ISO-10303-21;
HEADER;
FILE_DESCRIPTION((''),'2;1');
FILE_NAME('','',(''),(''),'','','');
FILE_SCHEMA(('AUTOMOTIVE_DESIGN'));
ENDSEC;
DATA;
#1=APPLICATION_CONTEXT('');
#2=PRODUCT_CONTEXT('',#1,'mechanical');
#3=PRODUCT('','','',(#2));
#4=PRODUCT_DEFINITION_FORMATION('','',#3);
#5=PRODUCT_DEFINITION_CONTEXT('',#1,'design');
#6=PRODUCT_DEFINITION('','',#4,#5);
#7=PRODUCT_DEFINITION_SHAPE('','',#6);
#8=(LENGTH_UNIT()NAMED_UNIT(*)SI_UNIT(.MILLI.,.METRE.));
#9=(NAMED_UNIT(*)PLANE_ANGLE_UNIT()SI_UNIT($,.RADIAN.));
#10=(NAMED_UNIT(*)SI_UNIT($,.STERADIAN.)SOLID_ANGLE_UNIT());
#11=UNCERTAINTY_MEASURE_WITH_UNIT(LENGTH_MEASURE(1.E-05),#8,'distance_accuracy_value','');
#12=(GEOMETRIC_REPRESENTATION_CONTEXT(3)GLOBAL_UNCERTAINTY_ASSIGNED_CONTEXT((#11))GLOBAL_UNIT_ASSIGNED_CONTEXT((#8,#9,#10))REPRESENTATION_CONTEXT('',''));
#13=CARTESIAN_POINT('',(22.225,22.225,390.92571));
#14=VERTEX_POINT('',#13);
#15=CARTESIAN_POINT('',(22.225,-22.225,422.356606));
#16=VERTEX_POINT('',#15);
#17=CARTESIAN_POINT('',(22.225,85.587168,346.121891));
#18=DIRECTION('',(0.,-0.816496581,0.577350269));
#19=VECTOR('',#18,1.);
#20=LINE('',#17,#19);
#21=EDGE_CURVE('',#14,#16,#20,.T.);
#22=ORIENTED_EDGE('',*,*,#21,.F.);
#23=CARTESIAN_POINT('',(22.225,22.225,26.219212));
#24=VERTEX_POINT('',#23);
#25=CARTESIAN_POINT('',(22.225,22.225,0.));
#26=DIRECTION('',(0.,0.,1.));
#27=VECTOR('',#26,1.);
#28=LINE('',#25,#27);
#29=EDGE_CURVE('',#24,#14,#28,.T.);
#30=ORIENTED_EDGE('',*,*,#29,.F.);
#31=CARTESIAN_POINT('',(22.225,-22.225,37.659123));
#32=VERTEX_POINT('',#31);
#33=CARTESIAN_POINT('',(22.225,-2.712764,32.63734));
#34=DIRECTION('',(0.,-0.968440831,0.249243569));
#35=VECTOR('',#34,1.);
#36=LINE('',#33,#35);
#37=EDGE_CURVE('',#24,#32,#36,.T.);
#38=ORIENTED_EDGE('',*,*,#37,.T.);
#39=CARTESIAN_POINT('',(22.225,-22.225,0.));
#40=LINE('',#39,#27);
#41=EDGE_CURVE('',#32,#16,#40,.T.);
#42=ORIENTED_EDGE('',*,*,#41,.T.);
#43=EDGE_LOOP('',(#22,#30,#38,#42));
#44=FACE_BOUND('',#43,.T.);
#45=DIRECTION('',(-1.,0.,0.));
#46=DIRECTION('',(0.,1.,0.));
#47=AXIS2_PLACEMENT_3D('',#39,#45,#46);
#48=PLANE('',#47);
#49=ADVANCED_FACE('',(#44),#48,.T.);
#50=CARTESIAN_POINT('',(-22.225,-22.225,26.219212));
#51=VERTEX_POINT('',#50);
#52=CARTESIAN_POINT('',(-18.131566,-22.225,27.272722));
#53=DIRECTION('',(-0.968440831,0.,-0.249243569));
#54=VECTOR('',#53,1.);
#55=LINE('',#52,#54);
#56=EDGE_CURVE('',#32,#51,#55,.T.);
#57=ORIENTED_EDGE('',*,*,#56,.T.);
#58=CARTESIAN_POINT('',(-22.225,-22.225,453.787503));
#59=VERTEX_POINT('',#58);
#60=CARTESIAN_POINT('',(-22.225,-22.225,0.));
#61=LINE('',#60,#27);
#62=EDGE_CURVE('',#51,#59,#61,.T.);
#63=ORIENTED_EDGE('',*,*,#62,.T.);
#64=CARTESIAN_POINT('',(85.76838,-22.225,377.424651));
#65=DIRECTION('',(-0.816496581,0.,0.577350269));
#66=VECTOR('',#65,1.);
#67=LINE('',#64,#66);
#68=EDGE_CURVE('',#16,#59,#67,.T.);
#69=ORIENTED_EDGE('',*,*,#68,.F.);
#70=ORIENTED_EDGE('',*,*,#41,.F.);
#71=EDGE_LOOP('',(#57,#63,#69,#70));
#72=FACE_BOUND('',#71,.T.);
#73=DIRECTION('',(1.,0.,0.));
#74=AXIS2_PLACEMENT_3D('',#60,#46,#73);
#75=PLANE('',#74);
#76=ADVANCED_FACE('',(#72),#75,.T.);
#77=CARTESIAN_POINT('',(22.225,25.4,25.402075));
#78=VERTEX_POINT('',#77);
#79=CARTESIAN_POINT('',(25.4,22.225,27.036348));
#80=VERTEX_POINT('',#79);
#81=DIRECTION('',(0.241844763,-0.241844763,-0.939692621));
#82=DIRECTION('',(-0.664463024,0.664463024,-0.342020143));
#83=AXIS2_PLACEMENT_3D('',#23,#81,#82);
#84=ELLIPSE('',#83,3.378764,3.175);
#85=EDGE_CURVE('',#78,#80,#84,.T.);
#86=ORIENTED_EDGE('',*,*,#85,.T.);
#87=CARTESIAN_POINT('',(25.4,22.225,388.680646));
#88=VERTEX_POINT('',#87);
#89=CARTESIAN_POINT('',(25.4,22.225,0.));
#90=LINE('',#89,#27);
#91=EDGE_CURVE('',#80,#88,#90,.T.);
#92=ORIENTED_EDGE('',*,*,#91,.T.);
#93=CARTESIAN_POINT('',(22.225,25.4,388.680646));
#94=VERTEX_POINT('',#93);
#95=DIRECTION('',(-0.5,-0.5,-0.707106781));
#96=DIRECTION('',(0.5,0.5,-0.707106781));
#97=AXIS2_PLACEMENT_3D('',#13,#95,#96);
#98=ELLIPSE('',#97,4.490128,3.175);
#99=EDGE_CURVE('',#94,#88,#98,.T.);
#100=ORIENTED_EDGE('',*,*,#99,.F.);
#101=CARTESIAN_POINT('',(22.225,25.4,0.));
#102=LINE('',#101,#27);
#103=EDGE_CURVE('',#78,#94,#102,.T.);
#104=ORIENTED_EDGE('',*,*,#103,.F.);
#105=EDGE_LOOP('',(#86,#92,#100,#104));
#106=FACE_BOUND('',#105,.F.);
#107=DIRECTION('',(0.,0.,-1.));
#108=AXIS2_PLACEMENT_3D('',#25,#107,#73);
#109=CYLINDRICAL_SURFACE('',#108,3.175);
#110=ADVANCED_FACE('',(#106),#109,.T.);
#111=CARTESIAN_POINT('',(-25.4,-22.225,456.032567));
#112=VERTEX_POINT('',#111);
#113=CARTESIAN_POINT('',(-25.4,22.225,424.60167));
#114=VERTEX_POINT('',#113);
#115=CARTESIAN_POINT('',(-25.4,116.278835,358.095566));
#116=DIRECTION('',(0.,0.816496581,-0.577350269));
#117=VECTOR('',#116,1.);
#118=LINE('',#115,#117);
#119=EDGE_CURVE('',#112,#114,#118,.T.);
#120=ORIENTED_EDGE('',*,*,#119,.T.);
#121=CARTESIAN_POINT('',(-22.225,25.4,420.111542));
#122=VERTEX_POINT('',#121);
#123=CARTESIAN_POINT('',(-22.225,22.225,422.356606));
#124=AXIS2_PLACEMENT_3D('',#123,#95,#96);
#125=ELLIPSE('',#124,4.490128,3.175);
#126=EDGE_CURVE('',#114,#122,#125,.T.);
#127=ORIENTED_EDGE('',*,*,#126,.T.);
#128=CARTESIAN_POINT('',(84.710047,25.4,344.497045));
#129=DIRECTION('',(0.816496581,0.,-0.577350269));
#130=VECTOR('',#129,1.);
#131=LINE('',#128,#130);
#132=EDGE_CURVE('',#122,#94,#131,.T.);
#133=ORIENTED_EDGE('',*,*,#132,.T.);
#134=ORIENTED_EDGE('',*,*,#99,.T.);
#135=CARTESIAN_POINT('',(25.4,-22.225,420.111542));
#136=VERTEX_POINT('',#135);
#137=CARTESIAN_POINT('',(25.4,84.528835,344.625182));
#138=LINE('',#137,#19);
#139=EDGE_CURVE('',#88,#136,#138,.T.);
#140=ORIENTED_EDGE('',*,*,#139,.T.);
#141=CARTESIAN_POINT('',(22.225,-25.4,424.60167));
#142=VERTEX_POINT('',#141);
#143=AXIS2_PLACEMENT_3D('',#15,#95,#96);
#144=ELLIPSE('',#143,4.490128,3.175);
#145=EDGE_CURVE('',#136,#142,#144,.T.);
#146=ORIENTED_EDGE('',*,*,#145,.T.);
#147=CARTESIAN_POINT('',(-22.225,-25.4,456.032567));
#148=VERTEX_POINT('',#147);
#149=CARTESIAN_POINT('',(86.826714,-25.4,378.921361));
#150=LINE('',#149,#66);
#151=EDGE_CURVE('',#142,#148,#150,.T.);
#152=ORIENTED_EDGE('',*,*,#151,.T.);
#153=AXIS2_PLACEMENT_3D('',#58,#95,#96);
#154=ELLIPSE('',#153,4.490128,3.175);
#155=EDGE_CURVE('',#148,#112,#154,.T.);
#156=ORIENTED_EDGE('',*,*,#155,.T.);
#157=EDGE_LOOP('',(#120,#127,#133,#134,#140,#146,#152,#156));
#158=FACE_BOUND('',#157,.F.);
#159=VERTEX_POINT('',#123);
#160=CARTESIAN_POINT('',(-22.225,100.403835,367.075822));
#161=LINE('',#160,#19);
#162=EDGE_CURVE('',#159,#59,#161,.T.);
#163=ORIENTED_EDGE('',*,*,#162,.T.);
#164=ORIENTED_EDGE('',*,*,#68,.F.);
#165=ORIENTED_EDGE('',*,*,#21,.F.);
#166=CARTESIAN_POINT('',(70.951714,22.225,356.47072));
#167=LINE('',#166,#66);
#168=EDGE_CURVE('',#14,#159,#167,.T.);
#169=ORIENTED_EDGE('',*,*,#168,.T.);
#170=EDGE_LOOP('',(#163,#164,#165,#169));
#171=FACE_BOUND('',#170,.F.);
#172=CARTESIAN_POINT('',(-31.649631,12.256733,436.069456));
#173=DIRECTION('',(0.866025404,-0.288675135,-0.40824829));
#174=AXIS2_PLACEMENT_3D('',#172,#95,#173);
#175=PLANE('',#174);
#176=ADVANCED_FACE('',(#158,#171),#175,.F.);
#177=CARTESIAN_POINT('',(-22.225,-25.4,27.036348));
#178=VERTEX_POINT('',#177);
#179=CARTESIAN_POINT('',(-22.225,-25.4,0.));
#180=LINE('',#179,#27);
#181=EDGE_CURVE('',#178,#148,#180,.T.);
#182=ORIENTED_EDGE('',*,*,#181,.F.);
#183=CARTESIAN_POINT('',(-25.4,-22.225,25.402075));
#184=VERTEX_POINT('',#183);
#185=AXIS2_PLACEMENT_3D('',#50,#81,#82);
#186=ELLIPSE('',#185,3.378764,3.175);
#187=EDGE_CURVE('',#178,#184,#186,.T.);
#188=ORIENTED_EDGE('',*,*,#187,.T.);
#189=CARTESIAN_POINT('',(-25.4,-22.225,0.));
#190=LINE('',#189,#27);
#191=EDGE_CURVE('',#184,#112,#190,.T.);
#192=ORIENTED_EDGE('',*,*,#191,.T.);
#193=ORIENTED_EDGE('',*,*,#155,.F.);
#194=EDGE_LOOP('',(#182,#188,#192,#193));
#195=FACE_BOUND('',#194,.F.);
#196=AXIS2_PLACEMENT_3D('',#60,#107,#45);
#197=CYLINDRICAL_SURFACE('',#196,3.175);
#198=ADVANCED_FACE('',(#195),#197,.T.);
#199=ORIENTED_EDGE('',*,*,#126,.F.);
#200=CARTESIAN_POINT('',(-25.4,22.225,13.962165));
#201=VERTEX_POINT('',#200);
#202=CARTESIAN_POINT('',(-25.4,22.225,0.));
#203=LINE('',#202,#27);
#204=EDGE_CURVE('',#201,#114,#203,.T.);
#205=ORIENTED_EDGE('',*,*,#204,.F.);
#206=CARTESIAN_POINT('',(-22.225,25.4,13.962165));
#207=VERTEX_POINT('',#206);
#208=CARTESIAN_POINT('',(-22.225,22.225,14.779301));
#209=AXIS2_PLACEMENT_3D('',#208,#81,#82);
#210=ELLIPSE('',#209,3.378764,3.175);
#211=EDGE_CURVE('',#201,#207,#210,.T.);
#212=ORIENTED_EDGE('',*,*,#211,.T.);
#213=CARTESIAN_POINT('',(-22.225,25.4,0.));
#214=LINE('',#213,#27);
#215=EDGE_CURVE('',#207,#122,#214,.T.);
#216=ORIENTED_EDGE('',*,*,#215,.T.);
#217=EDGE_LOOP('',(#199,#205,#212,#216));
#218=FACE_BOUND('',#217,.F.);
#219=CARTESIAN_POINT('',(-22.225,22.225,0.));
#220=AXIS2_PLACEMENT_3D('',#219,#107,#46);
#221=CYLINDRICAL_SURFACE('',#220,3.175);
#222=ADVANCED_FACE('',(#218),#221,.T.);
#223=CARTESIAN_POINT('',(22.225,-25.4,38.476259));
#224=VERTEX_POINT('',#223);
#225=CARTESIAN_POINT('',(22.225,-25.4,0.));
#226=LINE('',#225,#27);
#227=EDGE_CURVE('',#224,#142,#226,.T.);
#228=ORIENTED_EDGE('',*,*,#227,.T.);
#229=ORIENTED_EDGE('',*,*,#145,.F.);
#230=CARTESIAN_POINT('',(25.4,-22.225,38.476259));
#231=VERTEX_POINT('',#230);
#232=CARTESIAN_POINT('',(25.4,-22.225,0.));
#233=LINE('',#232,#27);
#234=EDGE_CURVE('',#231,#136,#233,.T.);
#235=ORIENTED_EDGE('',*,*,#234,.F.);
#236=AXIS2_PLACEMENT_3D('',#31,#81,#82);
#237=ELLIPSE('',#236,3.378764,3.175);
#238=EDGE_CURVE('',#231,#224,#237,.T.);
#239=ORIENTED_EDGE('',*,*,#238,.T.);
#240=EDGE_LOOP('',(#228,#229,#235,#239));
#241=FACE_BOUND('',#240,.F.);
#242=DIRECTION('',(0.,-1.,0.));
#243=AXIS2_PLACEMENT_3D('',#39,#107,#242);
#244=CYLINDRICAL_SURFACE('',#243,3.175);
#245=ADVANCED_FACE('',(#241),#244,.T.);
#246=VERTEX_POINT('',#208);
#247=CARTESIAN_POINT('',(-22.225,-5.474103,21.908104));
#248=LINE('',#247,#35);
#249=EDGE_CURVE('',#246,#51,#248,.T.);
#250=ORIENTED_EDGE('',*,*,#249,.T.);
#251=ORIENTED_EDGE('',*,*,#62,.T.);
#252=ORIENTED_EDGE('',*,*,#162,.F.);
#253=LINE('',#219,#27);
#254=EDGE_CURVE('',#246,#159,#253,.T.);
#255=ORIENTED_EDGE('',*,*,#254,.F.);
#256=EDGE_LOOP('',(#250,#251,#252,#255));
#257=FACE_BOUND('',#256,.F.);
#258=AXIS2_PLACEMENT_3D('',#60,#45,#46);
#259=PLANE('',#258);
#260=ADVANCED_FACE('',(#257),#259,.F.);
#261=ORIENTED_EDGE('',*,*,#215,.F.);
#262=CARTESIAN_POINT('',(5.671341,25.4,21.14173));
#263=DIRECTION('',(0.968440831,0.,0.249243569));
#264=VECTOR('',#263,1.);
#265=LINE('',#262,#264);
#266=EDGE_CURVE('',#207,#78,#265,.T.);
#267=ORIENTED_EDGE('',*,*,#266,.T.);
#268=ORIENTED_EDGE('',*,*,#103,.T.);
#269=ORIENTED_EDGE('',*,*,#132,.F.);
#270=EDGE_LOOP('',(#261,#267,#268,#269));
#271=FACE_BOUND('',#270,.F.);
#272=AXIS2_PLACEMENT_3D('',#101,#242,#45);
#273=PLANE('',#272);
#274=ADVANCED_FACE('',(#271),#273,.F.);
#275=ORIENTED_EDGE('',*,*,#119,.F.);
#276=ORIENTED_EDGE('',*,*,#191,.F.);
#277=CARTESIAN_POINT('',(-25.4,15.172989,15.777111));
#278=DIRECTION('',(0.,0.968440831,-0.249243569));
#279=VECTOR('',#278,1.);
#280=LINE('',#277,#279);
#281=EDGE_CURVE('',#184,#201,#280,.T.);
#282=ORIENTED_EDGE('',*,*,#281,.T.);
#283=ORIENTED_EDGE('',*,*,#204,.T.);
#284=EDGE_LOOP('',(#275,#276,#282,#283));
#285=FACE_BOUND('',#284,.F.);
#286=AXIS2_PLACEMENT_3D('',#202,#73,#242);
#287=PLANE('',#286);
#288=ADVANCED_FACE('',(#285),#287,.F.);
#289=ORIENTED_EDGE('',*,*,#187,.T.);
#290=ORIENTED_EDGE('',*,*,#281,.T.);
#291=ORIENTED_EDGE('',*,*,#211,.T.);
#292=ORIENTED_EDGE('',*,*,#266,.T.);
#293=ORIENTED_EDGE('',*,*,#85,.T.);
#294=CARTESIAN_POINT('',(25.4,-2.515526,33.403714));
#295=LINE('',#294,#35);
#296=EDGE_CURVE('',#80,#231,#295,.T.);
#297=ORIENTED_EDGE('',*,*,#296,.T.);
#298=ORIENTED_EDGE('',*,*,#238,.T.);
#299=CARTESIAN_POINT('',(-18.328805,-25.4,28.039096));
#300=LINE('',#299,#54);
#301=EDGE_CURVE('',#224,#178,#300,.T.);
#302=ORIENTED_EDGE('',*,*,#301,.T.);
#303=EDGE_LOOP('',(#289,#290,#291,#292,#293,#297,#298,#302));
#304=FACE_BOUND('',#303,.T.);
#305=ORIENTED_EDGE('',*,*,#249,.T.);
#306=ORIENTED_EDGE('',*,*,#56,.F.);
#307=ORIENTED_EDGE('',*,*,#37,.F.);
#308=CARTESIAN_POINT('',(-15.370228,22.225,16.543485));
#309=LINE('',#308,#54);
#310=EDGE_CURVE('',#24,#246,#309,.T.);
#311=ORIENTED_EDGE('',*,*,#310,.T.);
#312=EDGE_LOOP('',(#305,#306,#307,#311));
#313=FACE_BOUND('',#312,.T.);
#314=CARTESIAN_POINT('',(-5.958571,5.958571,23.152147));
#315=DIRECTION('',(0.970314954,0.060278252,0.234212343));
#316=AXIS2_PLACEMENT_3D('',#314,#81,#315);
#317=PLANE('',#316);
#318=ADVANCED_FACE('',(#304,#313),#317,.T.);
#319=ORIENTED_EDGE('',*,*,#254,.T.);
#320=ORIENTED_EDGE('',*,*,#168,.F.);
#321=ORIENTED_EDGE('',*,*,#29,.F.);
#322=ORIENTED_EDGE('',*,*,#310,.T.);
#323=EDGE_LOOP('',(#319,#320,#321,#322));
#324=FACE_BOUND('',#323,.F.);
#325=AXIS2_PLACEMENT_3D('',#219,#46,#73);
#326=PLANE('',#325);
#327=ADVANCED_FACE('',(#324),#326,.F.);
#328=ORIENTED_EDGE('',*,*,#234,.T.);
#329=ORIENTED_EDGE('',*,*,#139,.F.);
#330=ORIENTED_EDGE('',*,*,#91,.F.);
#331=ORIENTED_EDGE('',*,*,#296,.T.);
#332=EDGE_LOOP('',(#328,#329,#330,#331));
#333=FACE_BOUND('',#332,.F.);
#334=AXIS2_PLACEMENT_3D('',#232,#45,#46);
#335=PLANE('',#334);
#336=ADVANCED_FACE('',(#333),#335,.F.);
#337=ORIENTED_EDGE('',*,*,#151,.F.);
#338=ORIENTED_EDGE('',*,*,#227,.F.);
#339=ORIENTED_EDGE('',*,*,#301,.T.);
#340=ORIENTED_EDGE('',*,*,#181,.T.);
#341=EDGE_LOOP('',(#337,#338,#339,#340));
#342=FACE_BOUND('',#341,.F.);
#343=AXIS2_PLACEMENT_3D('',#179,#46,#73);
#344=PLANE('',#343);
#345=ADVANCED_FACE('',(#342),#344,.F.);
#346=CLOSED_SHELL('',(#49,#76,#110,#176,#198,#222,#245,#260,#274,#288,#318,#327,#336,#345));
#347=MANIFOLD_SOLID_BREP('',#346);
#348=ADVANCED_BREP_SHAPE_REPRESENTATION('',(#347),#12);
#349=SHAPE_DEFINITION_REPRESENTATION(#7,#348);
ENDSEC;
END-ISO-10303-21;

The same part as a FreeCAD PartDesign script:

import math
import FreeCAD as App
import Part
import Sketcher
from FreeCAD import Vector
Q = App.Units.Quantity

doc = App.newDocument("Part")
params = doc.addObject("Spreadsheet::Sheet", "Params")
for row, (alias, value) in enumerate([
    ("sketch1_radius", "0.125 in"),
    ("pad1_length", "18 in"),
    ("sketch2_width", "6 in"),
    ("pocket1_length", "1 in"),
    ("pocket1_length2", "0.97 in"),
    ("sketch3_width", "6 in"),
    ("pocket2_length", "0.97 in"),
    ("pocket2_length2", "1 in"),
], start=1):
    params.set(f"A{row}", alias)
    params.set(f"B{row}", "=" + value)
    params.setAlias(f"B{row}", alias)

body = doc.addObject("PartDesign::Body", "Body")

# Sketch on XY plane
sketch1 = body.newObject("Sketcher::SketchObject", "Sketch")
sketch1.AttachmentSupport = (doc.getObject("XY_Plane"), [""])
sketch1.MapMode = "FlatFace"
sketch1.addGeometry(Part.ArcOfCircle(Part.Circle(Vector(22.2, 22.2, 0), Vector(0, 0, 1), 3.2), math.radians(0), math.radians(90)), False)
sketch1.addGeometry(Part.LineSegment(Vector(22.2, 25.4, 0), Vector(-22.2, 25.4, 0)), False)
sketch1.addGeometry(Part.ArcOfCircle(Part.Circle(Vector(-22.2, 22.2, 0), Vector(0, 0, 1), 3.2), math.radians(90), math.radians(180)), False)
sketch1.addGeometry(Part.LineSegment(Vector(-25.4, 22.2, 0), Vector(-25.4, -22.2, 0)), False)
sketch1.addGeometry(Part.ArcOfCircle(Part.Circle(Vector(-22.2, -22.2, 0), Vector(0, 0, 1), 3.2), math.radians(180), math.radians(270)), False)
sketch1.addGeometry(Part.LineSegment(Vector(-22.2, -25.4, 0), Vector(22.2, -25.4, 0)), False)
sketch1.addGeometry(Part.ArcOfCircle(Part.Circle(Vector(22.2, -22.2, 0), Vector(0, 0, 1), 3.2), math.radians(-90), math.radians(0)), False)
sketch1.addGeometry(Part.LineSegment(Vector(25.4, -22.2, 0), Vector(25.4, 22.2, 0)), False)
sketch1.addGeometry(Part.LineSegment(Vector(22.2, -22.2, 0), Vector(-22.2, -22.2, 0)), False)
sketch1.addGeometry(Part.LineSegment(Vector(-22.2, -22.2, 0), Vector(-22.2, 22.2, 0)), False)
sketch1.addGeometry(Part.LineSegment(Vector(-22.2, 22.2, 0), Vector(22.2, 22.2, 0)), False)
sketch1.addGeometry(Part.LineSegment(Vector(22.2, 22.2, 0), Vector(22.2, -22.2, 0)), False)
sketch1.addConstraint(Sketcher.Constraint("Tangent", 0, 2, 1, 1))
sketch1.addConstraint(Sketcher.Constraint("Tangent", 1, 2, 2, 1))
sketch1.addConstraint(Sketcher.Constraint("Tangent", 2, 2, 3, 1))
sketch1.addConstraint(Sketcher.Constraint("Tangent", 3, 2, 4, 1))
sketch1.addConstraint(Sketcher.Constraint("Tangent", 4, 2, 5, 1))
sketch1.addConstraint(Sketcher.Constraint("Tangent", 5, 2, 6, 1))
sketch1.addConstraint(Sketcher.Constraint("Tangent", 6, 2, 7, 1))
sketch1.addConstraint(Sketcher.Constraint("Tangent", 7, 2, 0, 1))
sketch1.addConstraint(Sketcher.Constraint("Coincident", 8, 2, 9, 1))
sketch1.addConstraint(Sketcher.Constraint("Coincident", 9, 2, 10, 1))
sketch1.addConstraint(Sketcher.Constraint("Coincident", 10, 2, 11, 1))
sketch1.addConstraint(Sketcher.Constraint("Coincident", 11, 2, 8, 1))
sketch1.addConstraint(Sketcher.Constraint("Horizontal", 1))
sketch1.addConstraint(Sketcher.Constraint("Vertical", 3))
sketch1.addConstraint(Sketcher.Constraint("Horizontal", 5))
sketch1.addConstraint(Sketcher.Constraint("Vertical", 7))
sketch1.addConstraint(Sketcher.Constraint("Horizontal", 8))
sketch1.addConstraint(Sketcher.Constraint("Vertical", 9))
sketch1.addConstraint(Sketcher.Constraint("Horizontal", 10))
sketch1.addConstraint(Sketcher.Constraint("Vertical", 11))
sketch1.addConstraint(Sketcher.Constraint("Coincident", 8, 2, 4, 3))
sketch1.addConstraint(Sketcher.Constraint("Coincident", 9, 2, 2, 3))
sketch1.addConstraint(Sketcher.Constraint("Coincident", 10, 2, 0, 3))
sketch1.addConstraint(Sketcher.Constraint("Equal", 4, 6))
sketch1.addConstraint(Sketcher.Constraint("Symmetric", 0, 3, 4, 3, -1, 1))
sketch1.addConstraint(Sketcher.Constraint("Equal", 10, 3))
sketch1.addConstraint(Sketcher.Constraint("DistanceY", -1, 1, 0, 2, Q("1 in")))
sketch1.addConstraint(Sketcher.Constraint("Radius", 0, Q("0.125 in")))
sketch1.setExpression("Constraints[27]", "Params.sketch1_radius")
pad1 = body.newObject("PartDesign::Pad", "Pad")
pad1.Profile = sketch1
pad1.setExpression("Length", "Params.pad1_length")

# Sketch on an angled plane
sketch2 = body.newObject("Sketcher::SketchObject", "Sketch001")
sketch2.Placement = App.Placement(Vector(161.64461, 161.64461, 228.6), App.Rotation(Vector(0.866025404, -0.288675135, -0.40824829), Vector(0, -0.816496581, 0.57735027), Vector(-0.5, -0.5, -0.707106781), "ZXY"))
sketch2.addGeometry(Part.LineSegment(Vector(-263, 340, 0), Vector(-263, 188, 0)), False)
sketch2.addGeometry(Part.LineSegment(Vector(-263, 188, 0), Vector(-110, 188, 0)), False)
sketch2.addGeometry(Part.LineSegment(Vector(-110, 188, 0), Vector(-110, 340, 0)), False)
sketch2.addGeometry(Part.LineSegment(Vector(-110, 340, 0), Vector(-263, 340, 0)), False)
sketch2.addConstraint(Sketcher.Constraint("Coincident", 0, 2, 1, 1))
sketch2.addConstraint(Sketcher.Constraint("Coincident", 1, 2, 2, 1))
sketch2.addConstraint(Sketcher.Constraint("Coincident", 2, 2, 3, 1))
sketch2.addConstraint(Sketcher.Constraint("Coincident", 3, 2, 0, 1))
sketch2.addConstraint(Sketcher.Constraint("Vertical", 0))
sketch2.addConstraint(Sketcher.Constraint("Horizontal", 1))
sketch2.addConstraint(Sketcher.Constraint("Vertical", 2))
sketch2.addConstraint(Sketcher.Constraint("Horizontal", 3))
sketch2.addConstraint(Sketcher.Constraint("Equal", 3, 0))
sketch2.addConstraint(Sketcher.Constraint("DistanceX", 1, 1, 1, 2, Q("6 in")))
sketch2.addConstraint(Sketcher.Constraint("DistanceY", -1, 1, 0, 2, Q("187.8757 mm")))
sketch2.addConstraint(Sketcher.Constraint("DistanceX", 0, 2, -1, 1, Q("262.853745 mm")))
sketch2.setExpression("Constraints[9]", "Params.sketch2_width")
pocket1 = body.newObject("PartDesign::Pocket", "Pocket")
pocket1.Profile = sketch2
pocket1.Type = "TwoLengths"
pocket1.setExpression("Length", "Params.pocket1_length")
pocket1.setExpression("Length2", "Params.pocket1_length2")

# Sketch on an angled plane
sketch3 = body.newObject("Sketcher::SketchObject", "Sketch002")
sketch3.Placement = App.Placement(Vector(0, 0, 0), App.Rotation(Vector(0.970314954, 0.060278252, 0.234212343), Vector(0, -0.968440831, 0.24924357), Vector(0.241844763, -0.241844763, -0.939692621), "ZXY"))
sketch3.addGeometry(Part.LineSegment(Vector(-76, 76, 0), Vector(-76, -76, 0)), False)
sketch3.addGeometry(Part.LineSegment(Vector(-76, -76, 0), Vector(76, -76, 0)), False)
sketch3.addGeometry(Part.LineSegment(Vector(76, -76, 0), Vector(76, 76, 0)), False)
sketch3.addGeometry(Part.LineSegment(Vector(76, 76, 0), Vector(-76, 76, 0)), False)
sketch3.addConstraint(Sketcher.Constraint("Coincident", 0, 2, 1, 1))
sketch3.addConstraint(Sketcher.Constraint("Coincident", 1, 2, 2, 1))
sketch3.addConstraint(Sketcher.Constraint("Coincident", 2, 2, 3, 1))
sketch3.addConstraint(Sketcher.Constraint("Coincident", 3, 2, 0, 1))
sketch3.addConstraint(Sketcher.Constraint("Vertical", 0))
sketch3.addConstraint(Sketcher.Constraint("Horizontal", 1))
sketch3.addConstraint(Sketcher.Constraint("Vertical", 2))
sketch3.addConstraint(Sketcher.Constraint("Horizontal", 3))
sketch3.addConstraint(Sketcher.Constraint("Symmetric", 0, 2, 2, 2, -1, 1))
sketch3.addConstraint(Sketcher.Constraint("Equal", 3, 0))
sketch3.addConstraint(Sketcher.Constraint("DistanceX", 1, 1, 1, 2, Q("6 in")))
sketch3.setExpression("Constraints[10]", "Params.sketch3_width")
pocket2 = body.newObject("PartDesign::Pocket", "Pocket001")
pocket2.Profile = sketch3
pocket2.Type = "TwoLengths"
pocket2.setExpression("Length", "Params.pocket2_length")
pocket2.setExpression("Length2", "Params.pocket2_length2")

doc.recompute()
